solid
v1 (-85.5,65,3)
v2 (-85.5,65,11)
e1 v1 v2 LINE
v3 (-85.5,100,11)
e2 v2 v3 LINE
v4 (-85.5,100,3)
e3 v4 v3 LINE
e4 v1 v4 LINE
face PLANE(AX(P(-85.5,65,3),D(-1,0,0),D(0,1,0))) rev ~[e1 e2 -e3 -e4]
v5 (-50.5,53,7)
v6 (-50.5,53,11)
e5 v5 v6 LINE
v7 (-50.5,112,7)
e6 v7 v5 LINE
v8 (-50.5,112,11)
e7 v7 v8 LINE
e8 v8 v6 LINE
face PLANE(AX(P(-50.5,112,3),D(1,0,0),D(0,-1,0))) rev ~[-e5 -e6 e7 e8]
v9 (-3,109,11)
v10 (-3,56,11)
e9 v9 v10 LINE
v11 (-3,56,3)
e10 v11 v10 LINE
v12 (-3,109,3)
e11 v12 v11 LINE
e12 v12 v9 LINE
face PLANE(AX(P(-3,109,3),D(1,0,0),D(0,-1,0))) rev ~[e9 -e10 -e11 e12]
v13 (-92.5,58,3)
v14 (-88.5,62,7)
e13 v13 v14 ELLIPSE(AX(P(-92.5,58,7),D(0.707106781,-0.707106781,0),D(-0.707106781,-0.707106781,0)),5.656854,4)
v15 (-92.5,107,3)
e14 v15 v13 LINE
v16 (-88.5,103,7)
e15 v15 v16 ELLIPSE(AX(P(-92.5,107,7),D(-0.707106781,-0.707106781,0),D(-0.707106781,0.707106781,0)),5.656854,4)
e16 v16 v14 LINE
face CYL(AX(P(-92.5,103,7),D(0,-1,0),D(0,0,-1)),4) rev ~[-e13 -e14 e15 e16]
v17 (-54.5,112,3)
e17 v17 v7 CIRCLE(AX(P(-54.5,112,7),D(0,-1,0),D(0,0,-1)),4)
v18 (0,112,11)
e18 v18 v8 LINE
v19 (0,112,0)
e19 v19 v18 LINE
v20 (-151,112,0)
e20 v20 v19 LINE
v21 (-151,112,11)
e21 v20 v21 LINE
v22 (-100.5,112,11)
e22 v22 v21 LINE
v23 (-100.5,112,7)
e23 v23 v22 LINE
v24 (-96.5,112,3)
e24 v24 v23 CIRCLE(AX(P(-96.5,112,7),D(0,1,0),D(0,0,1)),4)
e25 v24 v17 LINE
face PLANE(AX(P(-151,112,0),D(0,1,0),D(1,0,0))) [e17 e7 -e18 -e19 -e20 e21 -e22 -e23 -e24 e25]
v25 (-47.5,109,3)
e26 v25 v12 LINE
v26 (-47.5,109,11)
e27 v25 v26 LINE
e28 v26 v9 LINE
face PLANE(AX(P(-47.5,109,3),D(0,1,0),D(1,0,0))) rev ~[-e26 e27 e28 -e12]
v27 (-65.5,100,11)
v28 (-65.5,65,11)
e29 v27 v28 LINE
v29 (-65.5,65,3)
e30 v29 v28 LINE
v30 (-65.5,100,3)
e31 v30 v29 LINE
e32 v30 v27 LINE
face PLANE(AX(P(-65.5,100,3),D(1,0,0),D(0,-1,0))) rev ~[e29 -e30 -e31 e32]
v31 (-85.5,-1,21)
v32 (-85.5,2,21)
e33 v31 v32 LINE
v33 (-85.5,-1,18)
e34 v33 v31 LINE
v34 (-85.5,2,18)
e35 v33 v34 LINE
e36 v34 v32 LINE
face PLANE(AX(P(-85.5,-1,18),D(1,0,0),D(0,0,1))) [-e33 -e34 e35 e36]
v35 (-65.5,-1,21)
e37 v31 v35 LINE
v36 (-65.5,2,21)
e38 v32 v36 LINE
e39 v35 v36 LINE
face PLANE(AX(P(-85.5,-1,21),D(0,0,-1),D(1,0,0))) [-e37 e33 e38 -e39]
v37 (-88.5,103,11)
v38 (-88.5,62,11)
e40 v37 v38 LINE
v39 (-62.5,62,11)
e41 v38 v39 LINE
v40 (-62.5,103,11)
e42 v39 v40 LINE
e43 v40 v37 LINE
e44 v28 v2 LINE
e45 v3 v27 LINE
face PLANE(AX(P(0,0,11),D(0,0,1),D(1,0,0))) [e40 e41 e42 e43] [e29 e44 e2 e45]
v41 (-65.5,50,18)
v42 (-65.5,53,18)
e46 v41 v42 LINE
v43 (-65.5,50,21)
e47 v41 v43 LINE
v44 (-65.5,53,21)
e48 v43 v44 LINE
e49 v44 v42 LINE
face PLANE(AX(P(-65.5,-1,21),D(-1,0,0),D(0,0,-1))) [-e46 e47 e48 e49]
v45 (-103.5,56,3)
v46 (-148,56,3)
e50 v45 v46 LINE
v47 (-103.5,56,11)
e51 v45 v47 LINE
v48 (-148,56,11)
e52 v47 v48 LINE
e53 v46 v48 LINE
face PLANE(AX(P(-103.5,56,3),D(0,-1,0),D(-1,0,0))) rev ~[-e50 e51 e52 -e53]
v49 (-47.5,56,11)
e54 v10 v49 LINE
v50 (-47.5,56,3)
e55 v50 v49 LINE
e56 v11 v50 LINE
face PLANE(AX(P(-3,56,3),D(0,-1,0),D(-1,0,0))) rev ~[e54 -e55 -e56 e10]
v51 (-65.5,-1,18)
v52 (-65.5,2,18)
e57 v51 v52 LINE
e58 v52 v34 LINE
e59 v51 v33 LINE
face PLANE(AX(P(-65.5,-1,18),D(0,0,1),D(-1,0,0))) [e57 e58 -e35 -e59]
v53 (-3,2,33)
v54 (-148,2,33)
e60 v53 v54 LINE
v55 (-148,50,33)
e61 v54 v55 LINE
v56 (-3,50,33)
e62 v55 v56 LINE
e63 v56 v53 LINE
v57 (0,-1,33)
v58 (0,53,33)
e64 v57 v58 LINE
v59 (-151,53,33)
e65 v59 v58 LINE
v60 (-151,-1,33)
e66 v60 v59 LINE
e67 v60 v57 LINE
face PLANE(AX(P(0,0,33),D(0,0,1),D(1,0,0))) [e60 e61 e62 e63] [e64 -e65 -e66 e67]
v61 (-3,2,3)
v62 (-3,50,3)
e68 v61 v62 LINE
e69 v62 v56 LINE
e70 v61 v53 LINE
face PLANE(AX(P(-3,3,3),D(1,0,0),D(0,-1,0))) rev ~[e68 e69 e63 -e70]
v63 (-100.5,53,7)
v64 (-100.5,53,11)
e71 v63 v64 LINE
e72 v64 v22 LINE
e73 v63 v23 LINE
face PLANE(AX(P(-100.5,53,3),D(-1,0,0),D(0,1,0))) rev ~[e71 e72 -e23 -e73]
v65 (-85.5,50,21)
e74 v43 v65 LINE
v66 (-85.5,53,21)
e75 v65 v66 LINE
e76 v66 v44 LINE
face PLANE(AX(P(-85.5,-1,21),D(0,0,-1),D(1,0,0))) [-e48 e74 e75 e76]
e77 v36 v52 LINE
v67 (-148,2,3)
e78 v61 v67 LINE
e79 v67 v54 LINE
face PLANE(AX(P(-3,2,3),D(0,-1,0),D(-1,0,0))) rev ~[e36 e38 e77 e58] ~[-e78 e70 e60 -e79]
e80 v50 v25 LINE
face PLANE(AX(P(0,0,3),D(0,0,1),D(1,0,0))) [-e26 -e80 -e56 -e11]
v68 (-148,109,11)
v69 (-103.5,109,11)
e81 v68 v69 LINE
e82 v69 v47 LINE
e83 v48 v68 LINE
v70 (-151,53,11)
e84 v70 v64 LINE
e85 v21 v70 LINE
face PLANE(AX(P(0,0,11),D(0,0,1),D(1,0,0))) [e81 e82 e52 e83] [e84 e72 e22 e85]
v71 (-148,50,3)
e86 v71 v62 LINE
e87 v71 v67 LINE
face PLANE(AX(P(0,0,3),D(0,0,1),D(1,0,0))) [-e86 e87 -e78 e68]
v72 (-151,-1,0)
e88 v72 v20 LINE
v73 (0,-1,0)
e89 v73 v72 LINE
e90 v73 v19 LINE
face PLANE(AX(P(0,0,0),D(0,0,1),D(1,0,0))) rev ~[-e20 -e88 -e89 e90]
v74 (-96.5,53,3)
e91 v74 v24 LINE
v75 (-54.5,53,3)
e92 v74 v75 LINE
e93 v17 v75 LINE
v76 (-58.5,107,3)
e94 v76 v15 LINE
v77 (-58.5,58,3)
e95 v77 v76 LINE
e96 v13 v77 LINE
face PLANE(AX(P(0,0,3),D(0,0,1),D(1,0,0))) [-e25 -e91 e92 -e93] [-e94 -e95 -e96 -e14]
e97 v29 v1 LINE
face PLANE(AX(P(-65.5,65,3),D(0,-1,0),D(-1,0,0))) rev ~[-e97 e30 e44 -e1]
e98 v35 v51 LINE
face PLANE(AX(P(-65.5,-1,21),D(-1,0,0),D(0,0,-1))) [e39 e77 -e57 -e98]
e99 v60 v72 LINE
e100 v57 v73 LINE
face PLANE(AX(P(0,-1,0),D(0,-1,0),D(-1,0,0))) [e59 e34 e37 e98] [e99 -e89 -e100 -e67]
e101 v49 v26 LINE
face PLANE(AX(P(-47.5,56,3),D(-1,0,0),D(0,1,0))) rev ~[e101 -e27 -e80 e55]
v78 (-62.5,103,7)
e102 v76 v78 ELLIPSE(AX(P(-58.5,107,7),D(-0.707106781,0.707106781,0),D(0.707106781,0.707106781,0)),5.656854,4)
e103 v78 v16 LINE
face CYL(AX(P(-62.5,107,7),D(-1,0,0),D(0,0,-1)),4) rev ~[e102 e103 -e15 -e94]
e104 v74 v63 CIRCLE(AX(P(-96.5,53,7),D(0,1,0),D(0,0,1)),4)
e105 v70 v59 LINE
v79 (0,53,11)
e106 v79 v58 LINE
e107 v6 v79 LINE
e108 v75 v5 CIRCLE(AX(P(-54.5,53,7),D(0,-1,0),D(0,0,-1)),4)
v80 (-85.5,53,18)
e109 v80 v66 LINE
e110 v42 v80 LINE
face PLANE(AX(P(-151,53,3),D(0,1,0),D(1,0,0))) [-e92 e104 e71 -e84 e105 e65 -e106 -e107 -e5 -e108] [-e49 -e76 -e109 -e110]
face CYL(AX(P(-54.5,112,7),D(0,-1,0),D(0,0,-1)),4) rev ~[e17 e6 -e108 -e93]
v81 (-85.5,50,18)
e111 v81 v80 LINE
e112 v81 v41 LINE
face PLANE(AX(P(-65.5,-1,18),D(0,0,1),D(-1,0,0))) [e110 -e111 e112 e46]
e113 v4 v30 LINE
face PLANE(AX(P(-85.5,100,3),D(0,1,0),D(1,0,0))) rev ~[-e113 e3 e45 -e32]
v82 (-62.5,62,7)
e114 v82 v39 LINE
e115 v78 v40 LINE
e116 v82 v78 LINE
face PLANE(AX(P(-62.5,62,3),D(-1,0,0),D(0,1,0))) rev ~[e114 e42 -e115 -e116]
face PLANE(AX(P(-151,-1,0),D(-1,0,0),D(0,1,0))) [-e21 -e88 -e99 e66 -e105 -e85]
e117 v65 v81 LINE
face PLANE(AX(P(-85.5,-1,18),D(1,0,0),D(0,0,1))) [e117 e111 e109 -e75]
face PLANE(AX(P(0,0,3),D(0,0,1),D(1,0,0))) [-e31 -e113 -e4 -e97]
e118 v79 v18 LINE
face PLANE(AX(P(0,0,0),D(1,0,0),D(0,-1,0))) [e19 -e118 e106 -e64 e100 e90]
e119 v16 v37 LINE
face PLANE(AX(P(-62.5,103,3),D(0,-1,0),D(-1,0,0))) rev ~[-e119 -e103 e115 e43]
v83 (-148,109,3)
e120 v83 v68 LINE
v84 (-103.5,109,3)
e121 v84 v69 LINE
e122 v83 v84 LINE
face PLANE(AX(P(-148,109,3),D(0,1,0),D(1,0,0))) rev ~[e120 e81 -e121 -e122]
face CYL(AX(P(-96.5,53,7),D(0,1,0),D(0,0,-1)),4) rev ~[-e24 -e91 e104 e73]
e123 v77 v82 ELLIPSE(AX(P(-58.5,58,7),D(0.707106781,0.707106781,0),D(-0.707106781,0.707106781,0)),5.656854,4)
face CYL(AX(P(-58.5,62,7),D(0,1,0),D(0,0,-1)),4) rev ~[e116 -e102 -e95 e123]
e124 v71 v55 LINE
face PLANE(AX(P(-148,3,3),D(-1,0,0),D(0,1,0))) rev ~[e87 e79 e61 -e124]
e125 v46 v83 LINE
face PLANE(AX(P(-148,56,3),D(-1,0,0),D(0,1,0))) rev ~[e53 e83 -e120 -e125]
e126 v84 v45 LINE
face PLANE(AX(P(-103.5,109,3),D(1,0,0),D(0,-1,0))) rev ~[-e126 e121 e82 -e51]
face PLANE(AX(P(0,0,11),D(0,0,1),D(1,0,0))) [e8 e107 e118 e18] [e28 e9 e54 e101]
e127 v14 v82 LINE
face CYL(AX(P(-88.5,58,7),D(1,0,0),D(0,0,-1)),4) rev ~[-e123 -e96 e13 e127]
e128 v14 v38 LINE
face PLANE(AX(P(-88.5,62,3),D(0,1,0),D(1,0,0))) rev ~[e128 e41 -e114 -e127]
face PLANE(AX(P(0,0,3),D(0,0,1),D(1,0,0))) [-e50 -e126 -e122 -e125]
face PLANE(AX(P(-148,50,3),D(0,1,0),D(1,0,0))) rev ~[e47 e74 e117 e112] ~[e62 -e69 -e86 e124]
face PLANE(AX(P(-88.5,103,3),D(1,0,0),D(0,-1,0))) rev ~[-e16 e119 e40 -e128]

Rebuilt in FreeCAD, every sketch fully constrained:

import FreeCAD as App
import Part
import Sketcher
Q = App.Units.Quantity


def edges_at(feature, points):
    """Names of the edges that pass closest to the given points."""
    edges = feature.Shape.Edges
    near = lambda p: min(range(len(edges)), key=lambda i: edges[i].distToShape(Part.Vertex(*p))[0])
    return sorted({f"Edge{near(p) + 1}" for p in points})

doc = App.newDocument("Part")
params = doc.addObject("Spreadsheet::Sheet", "Params")
for row, (alias, value) in enumerate([
    ("sketch1_width", "151 mm"),
    ("pad1_length", "3 mm"),
    ("sketch2_width", "151 mm"),
    ("pad2_length", "30 mm"),
    ("sketch3_width", "20 mm"),
    ("sketch3_height", "53 mm"),
    ("sketch3_height2", "35 mm"),
    ("sketch3_width2", "44.5 mm"),
    ("pad3_length", "8 mm"),
    ("fillet_radius", "4 mm"),
    ("sketch4_width", "20 mm"),
    ("sketch4_height", "3 mm"),
    ("pocket1_length", "54 mm"),
], start=1):
    params.set(f"A{row}", alias)
    params.set(f"B{row}", "=" + value)
    params.setAlias(f"B{row}", alias)

body = doc.addObject("PartDesign::Body", "Body")

sketch1 = doc.addObject("Sketcher::SketchObject", "Sketch")
body.addObject(sketch1)
sketch1.AttachmentSupport = (doc.XY_Plane, [""])
sketch1.MapMode = "FlatFace"
sketch1.addGeometry([
    Part.LineSegment(App.Vector(0, -1, 0), App.Vector(0, 112, 0)),
    Part.LineSegment(App.Vector(0, 112, 0), App.Vector(-151, 112, 0)),
    Part.LineSegment(App.Vector(-151, 112, 0), App.Vector(-151, -1, 0)),
    Part.LineSegment(App.Vector(-151, -1, 0), App.Vector(0, -1, 0)),
], False)
sketch1.addConstraint([
    Sketcher.Constraint("Coincident", 0, 2, 1, 1),
    Sketcher.Constraint("Coincident", 1, 2, 2, 1),
    Sketcher.Constraint("Coincident", 2, 2, 3, 1),
    Sketcher.Constraint("Coincident", 3, 2, 0, 1),
    Sketcher.Constraint("Vertical", 0),
    Sketcher.Constraint("Horizontal", 1),
    Sketcher.Constraint("Vertical", 2),
    Sketcher.Constraint("Horizontal", 3),
    Sketcher.Constraint("PointOnObject", 0, 2, -2),
    Sketcher.Constraint("DistanceX", 1, 2, 1, 1, Q("151 mm")),
    Sketcher.Constraint("DistanceY", -1, 1, 0, 2, Q("112 mm")),
    Sketcher.Constraint("DistanceY", 2, 2, -1, 1, Q("1 mm")),
])
sketch1.setExpression("Constraints[9]", "Params.sketch1_width")
pad1 = doc.addObject("PartDesign::Pad", "Pad")
body.addObject(pad1)
pad1.Profile = sketch1
pad1.setExpression("Length", "Params.pad1_length")

sketch2 = doc.addObject("Sketcher::SketchObject", "Sketch001")
body.addObject(sketch2)
sketch2.AttachmentSupport = (doc.XY_Plane, [""])
sketch2.MapMode = "FlatFace"
sketch2.AttachmentOffset = App.Placement(App.Vector(0, 0, 3), App.Rotation())
sketch2.addGeometry([
    Part.LineSegment(App.Vector(-151, 53, 0), App.Vector(-151, -1, 0)),
    Part.LineSegment(App.Vector(-151, -1, 0), App.Vector(0, -1, 0)),
    Part.LineSegment(App.Vector(0, -1, 0), App.Vector(0, 53, 0)),
    Part.LineSegment(App.Vector(0, 53, 0), App.Vector(-151, 53, 0)),
    Part.LineSegment(App.Vector(-148, 50, 0), App.Vector(-3, 50, 0)),
    Part.LineSegment(App.Vector(-3, 50, 0), App.Vector(-3, 2, 0)),
    Part.LineSegment(App.Vector(-3, 2, 0), App.Vector(-148, 2, 0)),
    Part.LineSegment(App.Vector(-148, 2, 0), App.Vector(-148, 50, 0)),
], False)
sketch2.addConstraint([
    Sketcher.Constraint("Coincident", 0, 2, 1, 1),
    Sketcher.Constraint("Coincident", 1, 2, 2, 1),
    Sketcher.Constraint("Coincident", 2, 2, 3, 1),
    Sketcher.Constraint("Coincident", 3, 2, 0, 1),
    Sketcher.Constraint("Coincident", 4, 2, 5, 1),
    Sketcher.Constraint("Coincident", 5, 2, 6, 1),
    Sketcher.Constraint("Coincident", 6, 2, 7, 1),
    Sketcher.Constraint("Coincident", 7, 2, 4, 1),
    Sketcher.Constraint("Vertical", 0),
    Sketcher.Constraint("Horizontal", 1),
    Sketcher.Constraint("Vertical", 2),
    Sketcher.Constraint("Horizontal", 3),
    Sketcher.Constraint("Horizontal", 4),
    Sketcher.Constraint("Vertical", 5),
    Sketcher.Constraint("Horizontal", 6),
    Sketcher.Constraint("Vertical", 7),
    Sketcher.Constraint("PointOnObject", 1, 2, -2),
    Sketcher.Constraint("DistanceX", 1, 1, 1, 2, Q("151 mm")),
    Sketcher.Constraint("DistanceY", 0, 2, -1, 1, Q("1 mm")),
    Sketcher.Constraint("DistanceY", -1, 1, 2, 2, Q("53 mm")),
    Sketcher.Constraint("DistanceX", 4, 2, -1, 1, Q("3 mm")),
    Sketcher.Constraint("DistanceY", 4, 2, 2, 2, Q("3 mm")),
    Sketcher.Constraint("DistanceY", 1, 2, 5, 2, Q("3 mm")),
    Sketcher.Constraint("DistanceX", 0, 2, 6, 2, Q("3 mm")),
])
sketch2.setExpression("Constraints[17]", "Params.sketch2_width")
pad2 = doc.addObject("PartDesign::Pad", "Pad001")
body.addObject(pad2)
pad2.Profile = sketch2
pad2.setExpression("Length", "Params.pad2_length")

sketch3 = doc.addObject("Sketcher::SketchObject", "Sketch002")
body.addObject(sketch3)
sketch3.AttachmentSupport = (doc.XY_Plane, [""])
sketch3.MapMode = "FlatFace"
sketch3.AttachmentOffset = App.Placement(App.Vector(0, 0, 3), App.Rotation())
sketch3.addGeometry([
    Part.LineSegment(App.Vector(0, 53, 0), App.Vector(0, 112, 0)),
    Part.LineSegment(App.Vector(0, 112, 0), App.Vector(-50, 112, 0)),
    Part.LineSegment(App.Vector(-50, 112, 0), App.Vector(-50, 53, 0)),
    Part.LineSegment(App.Vector(-50, 53, 0), App.Vector(0, 53, 0)),
    Part.LineSegment(App.Vector(-48, 56, 0), App.Vector(-48, 109, 0)),
    Part.LineSegment(App.Vector(-48, 109, 0), App.Vector(-3, 109, 0)),
    Part.LineSegment(App.Vector(-3, 109, 0), App.Vector(-3, 56, 0)),
    Part.LineSegment(App.Vector(-3, 56, 0), App.Vector(-48, 56, 0)),
    Part.LineSegment(App.Vector(-100, 53, 0), App.Vector(-100, 112, 0)),
    Part.LineSegment(App.Vector(-100, 112, 0), App.Vector(-151, 112, 0)),
    Part.LineSegment(App.Vector(-151, 112, 0), App.Vector(-151, 53, 0)),
    Part.LineSegment(App.Vector(-151, 53, 0), App.Vector(-100, 53, 0)),
    Part.LineSegment(App.Vector(-148, 56, 0), App.Vector(-148, 109, 0)),
    Part.LineSegment(App.Vector(-148, 109, 0), App.Vector(-104, 109, 0)),
    Part.LineSegment(App.Vector(-104, 109, 0), App.Vector(-104, 56, 0)),
    Part.LineSegment(App.Vector(-104, 56, 0), App.Vector(-148, 56, 0)),
    Part.LineSegment(App.Vector(-62, 62, 0), App.Vector(-62, 103, 0)),
    Part.LineSegment(App.Vector(-62, 103, 0), App.Vector(-88, 103, 0)),
    Part.LineSegment(App.Vector(-88, 103, 0), App.Vector(-88, 62, 0)),
    Part.LineSegment(App.Vector(-88, 62, 0), App.Vector(-62, 62, 0)),
    Part.LineSegment(App.Vector(-86, 65, 0), App.Vector(-86, 100, 0)),
    Part.LineSegment(App.Vector(-86, 100, 0), App.Vector(-66, 100, 0)),
    Part.LineSegment(App.Vector(-66, 100, 0), App.Vector(-66, 65, 0)),
    Part.LineSegment(App.Vector(-66, 65, 0), App.Vector(-86, 65, 0)),
], False)
sketch3.addConstraint([
    Sketcher.Constraint("Coincident", 0, 2, 1, 1),
    Sketcher.Constraint("Coincident", 1, 2, 2, 1),
    Sketcher.Constraint("Coincident", 2, 2, 3, 1),
    Sketcher.Constraint("Coincident", 3, 2, 0, 1),
    Sketcher.Constraint("Coincident", 4, 2, 5, 1),
    Sketcher.Constraint("Coincident", 5, 2, 6, 1),
    Sketcher.Constraint("Coincident", 6, 2, 7, 1),
    Sketcher.Constraint("Coincident", 7, 2, 4, 1),
    Sketcher.Constraint("Coincident", 8, 2, 9, 1),
    Sketcher.Constraint("Coincident", 9, 2, 10, 1),
    Sketcher.Constraint("Coincident", 10, 2, 11, 1),
    Sketcher.Constraint("Coincident", 11, 2, 8, 1),
    Sketcher.Constraint("Coincident", 12, 2, 13, 1),
    Sketcher.Constraint("Coincident", 13, 2, 14, 1),
    Sketcher.Constraint("Coincident", 14, 2, 15, 1),
    Sketcher.Constraint("Coincident", 15, 2, 12, 1),
    Sketcher.Constraint("Coincident", 16, 2, 17, 1),
    Sketcher.Constraint("Coincident", 17, 2, 18, 1),
    Sketcher.Constraint("Coincident", 18, 2, 19, 1),
    Sketcher.Constraint("Coincident", 19, 2, 16, 1),
    Sketcher.Constraint("Coincident", 20, 2, 21, 1),
    Sketcher.Constraint("Coincident", 21, 2, 22, 1),
    Sketcher.Constraint("Coincident", 22, 2, 23, 1),
    Sketcher.Constraint("Coincident", 23, 2, 20, 1),
    Sketcher.Constraint("Vertical", 0),
    Sketcher.Constraint("Horizontal", 1),
    Sketcher.Constraint("Vertical", 2),
    Sketcher.Constraint("Horizontal", 3),
    Sketcher.Constraint("Vertical", 4),
    Sketcher.Constraint("Horizontal", 5),
    Sketcher.Constraint("Vertical", 6),
    Sketcher.Constraint("Horizontal", 7),
    Sketcher.Constraint("Vertical", 8),
    Sketcher.Constraint("Horizontal", 9),
    Sketcher.Constraint("Vertical", 10),
    Sketcher.Constraint("Horizontal", 11),
    Sketcher.Constraint("Vertical", 12),
    Sketcher.Constraint("Horizontal", 13),
    Sketcher.Constraint("Vertical", 14),
    Sketcher.Constraint("Horizontal", 15),
    Sketcher.Constraint("Vertical", 16),
    Sketcher.Constraint("Horizontal", 17),
    Sketcher.Constraint("Vertical", 18),
    Sketcher.Constraint("Horizontal", 19),
    Sketcher.Constraint("Vertical", 20),
    Sketcher.Constraint("Horizontal", 21),
    Sketcher.Constraint("Vertical", 22),
    Sketcher.Constraint("Horizontal", 23),
    Sketcher.Constraint("PointOnObject", 0, 2, -2),
    Sketcher.Constraint("Horizontal", 1, 2, 8, 2),
    Sketcher.Constraint("Horizontal", 3, 2, 10, 2),
    Sketcher.Constraint("Horizontal", 5, 2, 12, 2),
    Sketcher.Constraint("Horizontal", 7, 2, 14, 2),
    Sketcher.Constraint("Equal", 3, 9),
    Sketcher.Constraint("Equal", 7, 13),
    Sketcher.Constraint("DistanceX", 21, 1, 21, 2, Q("20 mm")),
    Sketcher.Constraint("DistanceY", 4, 1, 4, 2, Q("53 mm")),
    Sketcher.Constraint("DistanceY", 20, 1, 20, 2, Q("35 mm")),
    Sketcher.Constraint("DistanceX", 5, 1, 5, 2, Q("44.5 mm")),
    Sketcher.Constraint("DistanceY", -1, 1, 2, 2, Q("53 mm")),
    Sketcher.Constraint("DistanceX", 5, 2, -1, 1, Q("3 mm")),
    Sketcher.Constraint("DistanceX", 1, 2, 4, 2, Q("3 mm")),
    Sketcher.Constraint("DistanceY", 4, 2, 1, 2, Q("3 mm")),
    Sketcher.Constraint("DistanceY", 3, 2, 6, 2, Q("3 mm")),
    Sketcher.Constraint("DistanceX", 8, 2, 4, 2, Q("53 mm")),
    Sketcher.Constraint("DistanceX", 9, 2, 12, 2, Q("3 mm")),
    Sketcher.Constraint("DistanceX", 16, 2, 1, 2, Q("12 mm")),
    Sketcher.Constraint("DistanceX", 8, 2, 17, 2, Q("12 mm")),
    Sketcher.Constraint("DistanceX", 17, 2, 20, 2, Q("3 mm")),
    Sketcher.Constraint("DistanceY", 20, 2, 17, 2, Q("3 mm")),
    Sketcher.Constraint("DistanceY", 20, 2, 8, 2, Q("12 mm")),
    Sketcher.Constraint("DistanceY", 19, 2, 22, 2, Q("3 mm")),
])
sketch3.setExpression("Constraints[55]", "Params.sketch3_width")
sketch3.setExpression("Constraints[56]", "Params.sketch3_height")
sketch3.setExpression("Constraints[57]", "Params.sketch3_height2")
sketch3.setExpression("Constraints[58]", "Params.sketch3_width2")
pad3 = doc.addObject("PartDesign::Pad", "Pad002")
body.addObject(pad3)
pad3.Profile = sketch3
pad3.setExpression("Length", "Params.pad3_length")
doc.recompute()

fillet = doc.addObject("PartDesign::Fillet", "Fillet")
body.addObject(fillet)
fillet.Base = (pad3, edges_at(pad3, [
    (-100.5, 82.5, 3),
    (-62.5, 82.5, 3),
    (-50.5, 82.5, 3),
    (-75.5, 103, 3),
    (-88.5, 82.5, 3),
    (-75.5, 62, 3),
]))
fillet.setExpression("Radius", "Params.fillet_radius")

sketch4 = doc.addObject("Sketcher::SketchObject", "Sketch003")
body.addObject(sketch4)
sketch4.AttachmentSupport = (doc.XZ_Plane, [""])
sketch4.MapMode = "FlatFace"
sketch4.AttachmentOffset = App.Placement(App.Vector(0, 0, 1), App.Rotation())
sketch4.addGeometry([
    Part.LineSegment(App.Vector(-65.5, 21, 0), App.Vector(-85.5, 21, 0)),
    Part.LineSegment(App.Vector(-85.5, 21, 0), App.Vector(-85.5, 18, 0)),
    Part.LineSegment(App.Vector(-85.5, 18, 0), App.Vector(-65.5, 18, 0)),
    Part.LineSegment(App.Vector(-65.5, 18, 0), App.Vector(-65.5, 21, 0)),
], False)
sketch4.addConstraint([
    Sketcher.Constraint("Coincident", 0, 2, 1, 1),
    Sketcher.Constraint("Coincident", 1, 2, 2, 1),
    Sketcher.Constraint("Coincident", 2, 2, 3, 1),
    Sketcher.Constraint("Coincident", 3, 2, 0, 1),
    Sketcher.Constraint("Horizontal", 0),
    Sketcher.Constraint("Vertical", 1),
    Sketcher.Constraint("Horizontal", 2),
    Sketcher.Constraint("Vertical", 3),
    Sketcher.Constraint("DistanceX", 0, 2, 0, 1, Q("20 mm")),
    Sketcher.Constraint("DistanceY", 1, 2, 1, 1, Q("3 mm")),
    Sketcher.Constraint("DistanceX", 2, 2, -1, 1, Q("65.5 mm")),
    Sketcher.Constraint("DistanceY", -1, 1, 0, 2, Q("21 mm")),
])
sketch4.setExpression("Constraints[8]", "Params.sketch4_width")
sketch4.setExpression("Constraints[9]", "Params.sketch4_height")
pocket1 = doc.addObject("PartDesign::Pocket", "Pocket")
body.addObject(pocket1)
pocket1.Profile = sketch4
pocket1.setExpression("Length", "Params.pocket1_length")

doc.recompute()
